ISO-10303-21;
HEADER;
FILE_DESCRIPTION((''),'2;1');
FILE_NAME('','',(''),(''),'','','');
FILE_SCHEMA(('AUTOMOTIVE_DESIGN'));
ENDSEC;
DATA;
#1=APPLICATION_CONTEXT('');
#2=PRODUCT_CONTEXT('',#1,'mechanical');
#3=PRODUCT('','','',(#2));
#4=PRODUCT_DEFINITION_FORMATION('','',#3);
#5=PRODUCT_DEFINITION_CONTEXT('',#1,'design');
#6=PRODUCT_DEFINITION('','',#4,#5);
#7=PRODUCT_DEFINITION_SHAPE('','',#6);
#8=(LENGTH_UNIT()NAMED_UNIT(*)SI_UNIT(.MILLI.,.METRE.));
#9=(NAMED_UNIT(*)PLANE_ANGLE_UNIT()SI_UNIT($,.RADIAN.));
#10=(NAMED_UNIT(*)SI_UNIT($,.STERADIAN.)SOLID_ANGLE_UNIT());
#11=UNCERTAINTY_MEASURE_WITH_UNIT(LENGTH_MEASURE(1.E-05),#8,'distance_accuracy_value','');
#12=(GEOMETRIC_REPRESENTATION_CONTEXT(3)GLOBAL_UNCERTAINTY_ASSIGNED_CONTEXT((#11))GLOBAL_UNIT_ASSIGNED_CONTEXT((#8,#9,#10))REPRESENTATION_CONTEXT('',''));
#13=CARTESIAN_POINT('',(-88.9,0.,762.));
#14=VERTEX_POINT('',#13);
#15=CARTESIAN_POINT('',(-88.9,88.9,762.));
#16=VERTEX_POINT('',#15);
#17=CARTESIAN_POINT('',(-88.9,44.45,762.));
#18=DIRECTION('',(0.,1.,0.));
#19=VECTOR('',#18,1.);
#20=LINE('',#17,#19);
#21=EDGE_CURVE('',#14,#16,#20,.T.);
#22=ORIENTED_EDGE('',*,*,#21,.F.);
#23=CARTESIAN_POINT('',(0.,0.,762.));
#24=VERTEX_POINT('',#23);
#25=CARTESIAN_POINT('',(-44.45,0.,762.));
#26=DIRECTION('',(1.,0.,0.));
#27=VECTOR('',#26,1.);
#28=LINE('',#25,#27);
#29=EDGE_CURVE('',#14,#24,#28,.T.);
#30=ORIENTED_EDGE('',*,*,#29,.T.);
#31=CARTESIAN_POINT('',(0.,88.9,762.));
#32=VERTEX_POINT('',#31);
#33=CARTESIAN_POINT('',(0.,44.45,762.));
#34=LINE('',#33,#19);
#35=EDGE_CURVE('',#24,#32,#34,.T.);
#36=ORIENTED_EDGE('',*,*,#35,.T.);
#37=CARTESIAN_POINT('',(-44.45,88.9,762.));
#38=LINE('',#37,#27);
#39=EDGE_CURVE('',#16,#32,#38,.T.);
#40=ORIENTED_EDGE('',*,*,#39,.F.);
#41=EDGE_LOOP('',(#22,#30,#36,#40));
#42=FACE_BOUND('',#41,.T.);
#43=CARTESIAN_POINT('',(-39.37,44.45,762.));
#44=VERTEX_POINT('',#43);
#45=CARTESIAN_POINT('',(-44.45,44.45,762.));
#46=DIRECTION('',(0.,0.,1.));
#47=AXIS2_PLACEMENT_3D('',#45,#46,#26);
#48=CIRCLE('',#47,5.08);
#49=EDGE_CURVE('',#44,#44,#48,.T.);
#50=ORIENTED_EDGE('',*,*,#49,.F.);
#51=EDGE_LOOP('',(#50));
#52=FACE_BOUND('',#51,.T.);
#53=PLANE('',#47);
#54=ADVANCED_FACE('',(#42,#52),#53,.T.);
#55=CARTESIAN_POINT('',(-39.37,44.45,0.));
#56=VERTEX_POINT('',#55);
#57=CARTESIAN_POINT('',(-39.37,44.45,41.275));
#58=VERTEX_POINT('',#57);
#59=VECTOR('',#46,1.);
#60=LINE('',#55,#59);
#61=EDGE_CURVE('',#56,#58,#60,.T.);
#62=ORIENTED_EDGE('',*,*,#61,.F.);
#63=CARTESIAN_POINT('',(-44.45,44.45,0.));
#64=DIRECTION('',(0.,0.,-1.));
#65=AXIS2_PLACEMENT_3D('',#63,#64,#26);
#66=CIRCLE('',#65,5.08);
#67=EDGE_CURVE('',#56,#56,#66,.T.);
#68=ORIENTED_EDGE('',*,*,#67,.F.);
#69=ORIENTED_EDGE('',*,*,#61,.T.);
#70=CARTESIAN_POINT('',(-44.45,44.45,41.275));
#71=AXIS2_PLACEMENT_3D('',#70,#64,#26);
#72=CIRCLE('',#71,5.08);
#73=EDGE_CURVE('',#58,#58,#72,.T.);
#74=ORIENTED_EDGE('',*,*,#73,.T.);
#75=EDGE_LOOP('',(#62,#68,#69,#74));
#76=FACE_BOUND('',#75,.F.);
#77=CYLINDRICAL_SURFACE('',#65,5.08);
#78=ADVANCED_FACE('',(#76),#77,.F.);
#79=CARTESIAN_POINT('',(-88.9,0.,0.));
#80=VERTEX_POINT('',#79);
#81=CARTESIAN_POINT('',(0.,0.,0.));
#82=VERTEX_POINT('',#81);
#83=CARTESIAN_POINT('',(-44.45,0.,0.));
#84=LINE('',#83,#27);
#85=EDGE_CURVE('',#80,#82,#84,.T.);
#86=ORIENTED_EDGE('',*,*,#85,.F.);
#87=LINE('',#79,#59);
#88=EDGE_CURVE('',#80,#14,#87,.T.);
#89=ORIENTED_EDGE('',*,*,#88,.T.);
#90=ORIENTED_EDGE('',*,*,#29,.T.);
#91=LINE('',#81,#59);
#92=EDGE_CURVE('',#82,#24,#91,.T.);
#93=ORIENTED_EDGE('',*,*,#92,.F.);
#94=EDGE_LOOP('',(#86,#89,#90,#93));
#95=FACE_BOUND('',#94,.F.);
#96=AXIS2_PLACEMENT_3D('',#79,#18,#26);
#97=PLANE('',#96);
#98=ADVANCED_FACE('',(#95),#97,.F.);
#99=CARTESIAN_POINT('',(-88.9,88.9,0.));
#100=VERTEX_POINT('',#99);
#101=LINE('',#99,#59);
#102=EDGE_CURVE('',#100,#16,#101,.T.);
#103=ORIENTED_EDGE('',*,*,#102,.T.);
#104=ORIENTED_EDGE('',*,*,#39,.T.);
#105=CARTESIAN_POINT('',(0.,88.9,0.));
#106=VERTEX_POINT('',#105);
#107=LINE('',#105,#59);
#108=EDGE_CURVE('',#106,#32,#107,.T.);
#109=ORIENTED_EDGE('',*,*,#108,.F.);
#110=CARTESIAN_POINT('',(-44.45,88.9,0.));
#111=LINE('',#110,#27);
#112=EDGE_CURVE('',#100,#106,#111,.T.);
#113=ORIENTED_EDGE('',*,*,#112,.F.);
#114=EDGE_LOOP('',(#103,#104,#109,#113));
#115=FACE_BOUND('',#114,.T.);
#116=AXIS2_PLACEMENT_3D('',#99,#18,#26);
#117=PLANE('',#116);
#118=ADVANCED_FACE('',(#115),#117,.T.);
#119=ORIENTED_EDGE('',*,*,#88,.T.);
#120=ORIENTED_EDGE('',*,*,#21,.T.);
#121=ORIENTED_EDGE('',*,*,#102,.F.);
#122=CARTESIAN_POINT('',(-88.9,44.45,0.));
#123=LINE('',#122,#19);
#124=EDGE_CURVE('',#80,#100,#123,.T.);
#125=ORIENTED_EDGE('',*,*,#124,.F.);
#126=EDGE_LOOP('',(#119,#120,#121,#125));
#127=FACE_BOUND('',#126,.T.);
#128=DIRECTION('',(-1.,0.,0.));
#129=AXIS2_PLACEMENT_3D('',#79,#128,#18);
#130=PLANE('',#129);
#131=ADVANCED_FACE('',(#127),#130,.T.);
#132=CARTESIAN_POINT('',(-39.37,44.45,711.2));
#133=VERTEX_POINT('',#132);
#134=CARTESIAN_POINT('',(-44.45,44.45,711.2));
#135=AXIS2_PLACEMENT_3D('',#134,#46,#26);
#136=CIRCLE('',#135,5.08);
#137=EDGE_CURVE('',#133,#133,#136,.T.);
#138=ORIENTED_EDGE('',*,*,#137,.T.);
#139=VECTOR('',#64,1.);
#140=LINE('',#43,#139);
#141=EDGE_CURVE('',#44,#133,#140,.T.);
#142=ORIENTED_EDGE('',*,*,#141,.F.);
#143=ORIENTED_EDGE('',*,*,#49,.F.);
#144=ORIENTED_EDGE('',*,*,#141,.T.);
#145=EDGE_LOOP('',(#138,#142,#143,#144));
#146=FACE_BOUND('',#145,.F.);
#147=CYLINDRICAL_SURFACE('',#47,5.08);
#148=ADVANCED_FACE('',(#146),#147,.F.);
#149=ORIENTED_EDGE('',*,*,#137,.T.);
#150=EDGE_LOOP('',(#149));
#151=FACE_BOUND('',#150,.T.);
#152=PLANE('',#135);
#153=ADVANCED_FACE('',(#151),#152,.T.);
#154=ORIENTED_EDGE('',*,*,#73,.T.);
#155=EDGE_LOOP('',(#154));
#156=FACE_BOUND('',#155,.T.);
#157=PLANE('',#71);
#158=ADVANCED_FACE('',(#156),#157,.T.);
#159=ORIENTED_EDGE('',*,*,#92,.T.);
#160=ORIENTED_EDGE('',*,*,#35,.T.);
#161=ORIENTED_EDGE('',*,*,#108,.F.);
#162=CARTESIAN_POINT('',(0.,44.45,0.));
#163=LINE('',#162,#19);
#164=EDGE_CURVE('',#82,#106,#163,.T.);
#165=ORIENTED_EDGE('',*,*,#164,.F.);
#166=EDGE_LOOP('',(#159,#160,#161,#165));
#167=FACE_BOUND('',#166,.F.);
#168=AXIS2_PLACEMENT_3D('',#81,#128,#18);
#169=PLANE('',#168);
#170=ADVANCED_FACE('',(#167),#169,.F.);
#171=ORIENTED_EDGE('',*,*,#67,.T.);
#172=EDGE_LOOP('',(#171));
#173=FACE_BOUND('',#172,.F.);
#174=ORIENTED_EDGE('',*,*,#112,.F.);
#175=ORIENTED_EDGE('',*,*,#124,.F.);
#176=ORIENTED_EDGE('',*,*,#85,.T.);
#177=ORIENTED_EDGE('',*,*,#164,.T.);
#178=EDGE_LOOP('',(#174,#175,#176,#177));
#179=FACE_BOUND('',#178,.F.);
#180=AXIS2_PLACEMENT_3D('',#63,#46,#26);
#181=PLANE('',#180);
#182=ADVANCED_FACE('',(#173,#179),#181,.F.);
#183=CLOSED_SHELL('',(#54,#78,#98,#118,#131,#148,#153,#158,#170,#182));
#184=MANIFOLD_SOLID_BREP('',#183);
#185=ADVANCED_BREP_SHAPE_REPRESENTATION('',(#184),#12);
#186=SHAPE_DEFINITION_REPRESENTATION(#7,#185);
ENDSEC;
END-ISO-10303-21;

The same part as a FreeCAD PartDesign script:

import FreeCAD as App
import Part
import Sketcher

V = App.Vector
Q = App.Units.Quantity

doc = App.newDocument("Part")
body = doc.addObject("PartDesign::Body", "Body")

sketch1 = body.newObject("Sketcher::SketchObject", "Sketch")
sketch1.AttachmentSupport = (doc.getObject("XY_Plane"), [""])
sketch1.MapMode = "FlatFace"
sketch1.addGeometry([
    Part.LineSegment(V(-89, 89, 0), V(-89, 0, 0)),
    Part.LineSegment(V(-89, 0, 0), V(0, 0, 0)),
    Part.LineSegment(V(0, 0, 0), V(0, 89, 0)),
    Part.LineSegment(V(0, 89, 0), V(-89, 89, 0)),
], False)
sketch1.addConstraint([
    Sketcher.Constraint("Coincident", 0, 2, 1, 1),
    Sketcher.Constraint("Coincident", 1, 2, 2, 1),
    Sketcher.Constraint("Coincident", 2, 2, 3, 1),
    Sketcher.Constraint("Coincident", 3, 2, 0, 1),
    Sketcher.Constraint("Vertical", 0),
    Sketcher.Constraint("Horizontal", 1),
    Sketcher.Constraint("Vertical", 2),
    Sketcher.Constraint("Horizontal", 3),
    Sketcher.Constraint("Coincident", 1, 2, -1, 1),
    Sketcher.Constraint("Equal", 3, 0),
    Sketcher.Constraint("DistanceX", 1, 1, 1, 2, Q("3.5 in")),
])
pad1 = body.newObject("PartDesign::Pad", "Pad")
pad1.Profile = sketch1
pad1.Length = Q("30 in")

sketch2 = body.newObject("Sketcher::SketchObject", "Sketch001")
sketch2.AttachmentSupport = (doc.getObject("XY_Plane"), [""])
sketch2.MapMode = "FlatFace"
sketch2.AttachmentOffset = App.Placement(V(0, 0, 30 * 25.4), App.Rotation())
sketch2.addGeometry(Part.Circle(V(-44, 44, 0), V(0, 0, 1), 5), False)
sketch2.addConstraint([
    Sketcher.Constraint("Diameter", 0, Q("0.4 in")),
    Sketcher.Constraint("DistanceX", 0, 3, -1, 1, Q("1.75 in")),
    Sketcher.Constraint("DistanceY", -1, 1, 0, 3, Q("1.75 in")),
])
pocket1 = body.newObject("PartDesign::Pocket", "Pocket")
pocket1.Profile = sketch2
pocket1.Length = Q("2 in")

sketch3 = body.newObject("Sketcher::SketchObject", "Sketch002")
sketch3.AttachmentSupport = (doc.getObject("XY_Plane"), [""])
sketch3.MapMode = "FlatFace"
sketch3.addGeometry(Part.Circle(V(-44, 44, 0), V(0, 0, 1), 5), False)
sketch3.addConstraint([
    Sketcher.Constraint("Diameter", 0, Q("0.4 in")),
    Sketcher.Constraint("DistanceX", 0, 3, -1, 1, Q("1.75 in")),
    Sketcher.Constraint("DistanceY", -1, 1, 0, 3, Q("1.75 in")),
])
pocket2 = body.newObject("PartDesign::Pocket", "Pocket001")
pocket2.Profile = sketch3
pocket2.Length = Q("1.625 in")
pocket2.Reversed = True

doc.recompute()
